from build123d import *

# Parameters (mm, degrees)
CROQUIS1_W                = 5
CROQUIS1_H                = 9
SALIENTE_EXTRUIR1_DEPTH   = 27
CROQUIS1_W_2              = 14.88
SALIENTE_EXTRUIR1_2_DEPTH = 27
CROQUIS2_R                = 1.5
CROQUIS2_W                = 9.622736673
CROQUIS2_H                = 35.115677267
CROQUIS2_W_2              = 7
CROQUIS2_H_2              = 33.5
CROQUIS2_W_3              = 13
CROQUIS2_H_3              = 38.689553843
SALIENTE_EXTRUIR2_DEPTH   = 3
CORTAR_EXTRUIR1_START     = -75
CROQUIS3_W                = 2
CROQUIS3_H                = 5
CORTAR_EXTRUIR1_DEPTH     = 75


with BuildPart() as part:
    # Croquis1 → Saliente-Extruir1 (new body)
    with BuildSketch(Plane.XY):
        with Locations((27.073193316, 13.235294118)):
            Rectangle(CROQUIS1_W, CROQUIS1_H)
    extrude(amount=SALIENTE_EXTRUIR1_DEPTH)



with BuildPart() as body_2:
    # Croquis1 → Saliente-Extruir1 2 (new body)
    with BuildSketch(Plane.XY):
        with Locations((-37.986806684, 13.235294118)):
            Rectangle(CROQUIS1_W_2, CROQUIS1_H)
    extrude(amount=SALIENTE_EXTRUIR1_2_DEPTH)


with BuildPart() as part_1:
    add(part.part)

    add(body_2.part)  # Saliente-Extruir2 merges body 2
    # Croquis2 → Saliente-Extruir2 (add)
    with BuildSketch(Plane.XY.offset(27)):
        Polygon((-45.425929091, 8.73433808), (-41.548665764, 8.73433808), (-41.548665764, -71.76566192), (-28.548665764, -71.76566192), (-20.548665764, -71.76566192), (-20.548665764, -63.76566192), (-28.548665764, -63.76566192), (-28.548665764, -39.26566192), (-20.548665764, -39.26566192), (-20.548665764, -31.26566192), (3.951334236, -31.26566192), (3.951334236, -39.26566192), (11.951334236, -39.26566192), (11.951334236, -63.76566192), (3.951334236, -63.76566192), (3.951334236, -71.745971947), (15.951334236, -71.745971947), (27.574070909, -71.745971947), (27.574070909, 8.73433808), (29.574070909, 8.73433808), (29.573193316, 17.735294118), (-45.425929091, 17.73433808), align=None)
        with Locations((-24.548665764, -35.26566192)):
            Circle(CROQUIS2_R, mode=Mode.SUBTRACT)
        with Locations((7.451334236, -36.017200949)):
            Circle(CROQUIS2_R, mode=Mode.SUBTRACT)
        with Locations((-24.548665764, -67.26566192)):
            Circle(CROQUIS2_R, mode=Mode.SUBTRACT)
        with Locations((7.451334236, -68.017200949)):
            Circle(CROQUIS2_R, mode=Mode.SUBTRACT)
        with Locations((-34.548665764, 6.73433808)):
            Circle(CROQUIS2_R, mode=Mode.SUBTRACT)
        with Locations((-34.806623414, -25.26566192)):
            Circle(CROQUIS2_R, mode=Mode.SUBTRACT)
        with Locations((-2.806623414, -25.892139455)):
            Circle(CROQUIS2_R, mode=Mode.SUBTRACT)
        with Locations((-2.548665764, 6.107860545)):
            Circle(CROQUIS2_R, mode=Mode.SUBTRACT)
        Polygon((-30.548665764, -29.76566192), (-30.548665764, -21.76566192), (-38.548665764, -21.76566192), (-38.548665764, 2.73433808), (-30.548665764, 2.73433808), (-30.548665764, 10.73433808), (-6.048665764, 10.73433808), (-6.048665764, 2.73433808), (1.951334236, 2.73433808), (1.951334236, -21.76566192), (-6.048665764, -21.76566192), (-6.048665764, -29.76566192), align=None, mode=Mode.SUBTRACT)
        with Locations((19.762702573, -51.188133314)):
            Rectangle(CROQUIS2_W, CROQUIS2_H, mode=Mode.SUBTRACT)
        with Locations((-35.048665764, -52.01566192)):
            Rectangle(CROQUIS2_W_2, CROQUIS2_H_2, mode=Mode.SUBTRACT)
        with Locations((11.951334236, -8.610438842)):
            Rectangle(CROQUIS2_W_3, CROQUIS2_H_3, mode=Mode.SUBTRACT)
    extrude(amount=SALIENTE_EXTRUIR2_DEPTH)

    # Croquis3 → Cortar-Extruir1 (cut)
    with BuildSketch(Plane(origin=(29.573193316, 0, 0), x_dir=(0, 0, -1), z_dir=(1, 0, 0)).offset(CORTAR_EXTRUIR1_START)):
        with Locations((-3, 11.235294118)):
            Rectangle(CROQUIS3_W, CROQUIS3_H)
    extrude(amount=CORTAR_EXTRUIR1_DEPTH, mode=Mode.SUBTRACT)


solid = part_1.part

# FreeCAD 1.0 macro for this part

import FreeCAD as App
import Part
import Sketcher

V = App.Vector
Q = App.Units.Quantity


def add_polygon(sketch, points):
    """Adds a closed chain of lines whose ends are joined by coincident constraints."""
    first, n = sketch.GeometryCount, len(points)
    for a, b in zip(points, points[1:] + points[:1]):
        sketch.addGeometry(Part.LineSegment(App.Vector(*a, 0), App.Vector(*b, 0)), False)
    for i in range(n):
        sketch.addConstraint(Sketcher.Constraint("Coincident", first + i, 2, first + (i + 1) % n, 1))

doc = App.newDocument("Part")
body = doc.addObject("PartDesign::Body", "Body")

sketch1 = doc.addObject("Sketcher::SketchObject", "Sketch")
body.addObject(sketch1)
sketch1.AttachmentSupport = (doc.XY_Plane, [""])
sketch1.MapMode = "FlatFace"
add_polygon(sketch1, [(25, 18), (25, 9), (30, 9), (30, 18)])
sketch1.addConstraint([
    Sketcher.Constraint("Vertical", 0),
    Sketcher.Constraint("Horizontal", 1),
    Sketcher.Constraint("Vertical", 2),
    Sketcher.Constraint("Horizontal", 3),
    Sketcher.Constraint("DistanceX", 1, 1, 1, 2, Q("5 mm")),
    Sketcher.Constraint("DistanceY", 0, 2, 0, 1, Q("9 mm")),
    Sketcher.Constraint("DistanceX", -1, 1, 0, 2, Q("24.573193 mm")),
    Sketcher.Constraint("DistanceY", -1, 1, 0, 2, Q("8.735294 mm")),
])
pad1 = doc.addObject("PartDesign::Pad", "Pad")
body.addObject(pad1)
pad1.Profile = sketch1
pad1.Length = 27
body2 = doc.addObject("PartDesign::Body", "Body001")

sketch2 = doc.addObject("Sketcher::SketchObject", "Sketch001")
body2.addObject(sketch2)
sketch2.AttachmentSupport = (doc.getObject("XY_Plane001"), [""])
sketch2.MapMode = "FlatFace"
add_polygon(sketch2, [(-45, 18), (-45, 9), (-31, 9), (-31, 18)])
sketch2.addConstraint([
    Sketcher.Constraint("Vertical", 0),
    Sketcher.Constraint("Horizontal", 1),
    Sketcher.Constraint("Vertical", 2),
    Sketcher.Constraint("Horizontal", 3),
    Sketcher.Constraint("DistanceY", 0, 2, 0, 1, Q("9 mm")),
    Sketcher.Constraint("DistanceX", 1, 1, 1, 2, Q("14.88 mm")),
    Sketcher.Constraint("DistanceX", 0, 2, -1, 1, Q("45.426807 mm")),
    Sketcher.Constraint("DistanceY", -1, 1, 0, 2, Q("8.735294 mm")),
])
pad2 = doc.addObject("PartDesign::Pad", "Pad001")
body2.addObject(pad2)
pad2.Profile = sketch2
pad2.Length = 27
body.AllowCompound = True
doc.recompute()

boolean = doc.addObject("PartDesign::Boolean", "Boolean")
body.addObject(boolean)
boolean.Type = "Fuse"
boolean.addObjects([body2])

sketch3 = doc.addObject("Sketcher::SketchObject", "Sketch002")
body.addObject(sketch3)
sketch3.AttachmentSupport = (doc.XY_Plane, [""])
sketch3.MapMode = "FlatFace"
sketch3.AttachmentOffset = App.Placement(V(0, 0, 27), App.Rotation())
add_polygon(sketch3, [(-45.4, 8.7), (-41.5, 8.7), (-41.5, -71.8), (-20.5, -71.8), (-20.5, -63.8), (-28.5, -63.8), (-28.5, -39.3), (-20.5, -39.3), (-20.5, -31.3), (4, -31.3), (4, -39.3), (12, -39.3), (12, -63.8), (4, -63.8), (4, -71.7), (27.6, -71.7), (27.6, 8.7), (29.6, 8.7), (29.6, 17.7), (-45.4, 17.7)])
sketch3.addGeometry(Part.Circle(V(-24.5, -67.3, 0), V(0, 0, 1), 1.5), False)
add_polygon(sketch3, [(-31.5, -68.8), (-38.5, -68.8), (-38.5, -35.3), (-31.5, -35.3)])
sketch3.addGeometry(Part.Circle(V(-24.5, -35.3, 0), V(0, 0, 1), 1.5), False)
sketch3.addGeometry(Part.Circle(V(7.5, -68, 0), V(0, 0, 1), 1.5), False)
add_polygon(sketch3, [(24.6, -68.7), (15, -68.7), (15, -33.6), (24.6, -33.6)])
sketch3.addGeometry(Part.Circle(V(7.5, -36, 0), V(0, 0, 1), 1.5), False)
sketch3.addGeometry(Part.Circle(V(-34.8, -25.3, 0), V(0, 0, 1), 1.5), False)
add_polygon(sketch3, [(-6, -29.8), (-30.5, -29.8), (-30.5, -21.8), (-38.5, -21.8), (-38.5, 2.7), (-30.5, 2.7), (-30.5, 10.7), (-6, 10.7), (-6, 2.7), (2, 2.7), (2, -21.8), (-6, -21.8)])
sketch3.addGeometry(Part.Circle(V(-34.5, 6.7, 0), V(0, 0, 1), 1.5), False)
sketch3.addGeometry(Part.Circle(V(-2.8, -25.9, 0), V(0, 0, 1), 1.5), False)
sketch3.addGeometry(Part.Circle(V(-2.5, 6.1, 0), V(0, 0, 1), 1.5), False)
add_polygon(sketch3, [(18.5, -28), (5.5, -28), (5.5, 10.7), (18.5, 10.7)])
sketch3.addConstraint([
    Sketcher.Constraint("Horizontal", 0),
    Sketcher.Constraint("Vertical", 1),
    Sketcher.Constraint("Horizontal", 2),
    Sketcher.Constraint("Vertical", 3),
    Sketcher.Constraint("Horizontal", 4),
    Sketcher.Constraint("Vertical", 5),
    Sketcher.Constraint("Horizontal", 6),
    Sketcher.Constraint("Vertical", 7),
    Sketcher.Constraint("Horizontal", 8),
    Sketcher.Constraint("Vertical", 9),
    Sketcher.Constraint("Horizontal", 10),
    Sketcher.Constraint("Vertical", 11),
    Sketcher.Constraint("Horizontal", 12),
    Sketcher.Constraint("Vertical", 13),
    Sketcher.Constraint("Horizontal", 14),
    Sketcher.Constraint("Vertical", 15),
    Sketcher.Constraint("Horizontal", 16),
    Sketcher.Constraint("Vertical", 19),
    Sketcher.Constraint("Horizontal", 21),
    Sketcher.Constraint("Vertical", 22),
    Sketcher.Constraint("Horizontal", 23),
    Sketcher.Constraint("Vertical", 24),
    Sketcher.Constraint("Horizontal", 27),
    Sketcher.Constraint("Vertical", 28),
    Sketcher.Constraint("Horizontal", 29),
    Sketcher.Constraint("Vertical", 30),
    Sketcher.Constraint("Horizontal", 33),
    Sketcher.Constraint("Vertical", 34),
    Sketcher.Constraint("Horizontal", 35),
    Sketcher.Constraint("Vertical", 36),
    Sketcher.Constraint("Horizontal", 37),
    Sketcher.Constraint("Vertical", 38),
    Sketcher.Constraint("Horizontal", 39),
    Sketcher.Constraint("Vertical", 40),
    Sketcher.Constraint("Horizontal", 41),
    Sketcher.Constraint("Vertical", 42),
    Sketcher.Constraint("Horizontal", 43),
    Sketcher.Constraint("Vertical", 44),
    Sketcher.Constraint("Horizontal", 48),
    Sketcher.Constraint("Vertical", 49),
    Sketcher.Constraint("Horizontal", 50),
    Sketcher.Constraint("Vertical", 51),
    Sketcher.Constraint("Equal", 20, 25),
    Sketcher.Constraint("Equal", 25, 26),
    Sketcher.Constraint("Equal", 26, 31),
    Sketcher.Constraint("Equal", 31, 32),
    Sketcher.Constraint("Equal", 32, 45),
    Sketcher.Constraint("Equal", 45, 46),
    Sketcher.Constraint("Equal", 46, 47),
    Sketcher.Constraint("Horizontal", 6, 2, 9, 2),
    Sketcher.Constraint("Horizontal", 4, 2, 11, 2),
    Sketcher.Constraint("Horizontal", 0, 2, 15, 2),
    Sketcher.Constraint("Horizontal", 25, 3, 22, 2),
    Sketcher.Constraint("Horizontal", 37, 2, 40, 2),
    Sketcher.Constraint("Horizontal", 35, 2, 42, 2),
    Sketcher.Constraint("Horizontal", 39, 2, 49, 2),
    Sketcher.Constraint("Vertical", 20, 3, 25, 3),
    Sketcher.Constraint("Vertical", 26, 3, 31, 3),
    Sketcher.Constraint("Vertical", 3, 2, 6, 2),
    Sketcher.Constraint("Vertical", 9, 2, 12, 2),
    Sketcher.Constraint("Vertical", 22, 2, 35, 2),
    Sketcher.Constraint("Vertical", 34, 2, 37, 2),
    Sketcher.Constraint("Vertical", 40, 2, 43, 2),
    Sketcher.Constraint("Equal", 6, 10),
    Sketcher.Constraint("Equal", 8, 33),
    Sketcher.Constraint("Equal", 12, 35),
    Sketcher.Constraint("Equal", 37, 41),
    Sketcher.Constraint("Equal", 43, 3),
    Sketcher.Constraint("Equal", 39, 5),
    Sketcher.Constraint("Equal", 3, 7),
    Sketcher.Constraint("Equal", 9, 34),
    Sketcher.Constraint("Equal", 11, 36),
    Sketcher.Constraint("Equal", 34, 38),
    Sketcher.Constraint("Diameter", 20, Q("3 mm")),
    Sketcher.Constraint("DistanceX", 2, 1, 2, 2, Q("21 mm")),
    Sketcher.Constraint("DistanceX", 4, 2, 4, 1, Q("8 mm")),
    Sketcher.Constraint("DistanceX", 16, 1, 16, 2, Q("2 mm")),
    Sketcher.Constraint("DistanceX", 21, 2, 21, 1, Q("7 mm")),
    Sketcher.Constraint("DistanceX", 48, 2, 48, 1, Q("13 mm")),
    Sketcher.Constraint("DistanceY", 19, 2, 19, 1, Q("9 mm")),
    Sketcher.Constraint("DistanceX", 8, 1, 8, 2, Q("24.5 mm")),
    Sketcher.Constraint("DistanceY", 1, 2, 1, 1, Q("80.5 mm")),
    Sketcher.Constraint("DistanceY", 22, 1, 22, 2, Q("33.5 mm")),
    Sketcher.Constraint("DistanceY", 20, 3, 25, 3, Q("32 mm")),
    Sketcher.Constraint("DistanceX", 20, 3, 26, 3, Q("32 mm")),
    Sketcher.Constraint("DistanceY", 26, 3, 31, 3, Q("32 mm")),
    Sketcher.Constraint("DistanceY", 25, 3, 32, 3, Q("10 mm")),
    Sketcher.Constraint("DistanceY", 32, 3, 45, 3, Q("32 mm")),
    Sketcher.Constraint("DistanceX", 45, 3, 25, 3, Q("10 mm")),
    Sketcher.Constraint("DistanceX", 32, 3, 46, 3, Q("32 mm")),
    Sketcher.Constraint("DistanceY", 46, 3, 47, 3, Q("32 mm")),
    Sketcher.Constraint("DistanceX", 45, 3, 47, 3, Q("32 mm")),
    Sketcher.Constraint("DistanceX", 0, 2, 45, 3, Q("7 mm")),
    Sketcher.Constraint("DistanceY", 45, 3, 0, 2, Q("2 mm")),
    Sketcher.Constraint("DistanceX", 1, 2, 21, 2, Q("3 mm")),
    Sketcher.Constraint("DistanceX", 11, 2, 27, 2, Q("3 mm")),
    Sketcher.Constraint("DistanceY", 13, 2, 27, 2, Q("3 mm")),
    Sketcher.Constraint("DistanceX", 30, 2, 14, 2, Q("3 mm")),
    Sketcher.Constraint("DistanceY", 36, 2, 45, 3, Q("4 mm")),
    Sketcher.Constraint("DistanceX", 48, 2, 31, 3, Q("2 mm")),
    Sketcher.Constraint("DistanceY", 13, 2, 13, 1, Q("7.98031 mm")),
    Sketcher.Constraint("DistanceY", 26, 3, -1, 1, Q("68.017201 mm")),
    Sketcher.Constraint("DistanceX", 0, 1, 0, 2, Q("3.877263 mm")),
    Sketcher.Constraint("DistanceX", 14, 1, 14, 2, Q("23.622737 mm")),
    Sketcher.Constraint("DistanceY", 28, 1, 28, 2, Q("35.115677 mm")),
    Sketcher.Constraint("DistanceY", 49, 1, 49, 2, Q("38.689554 mm")),
    Sketcher.Constraint("DistanceY", 20, 3, -1, 1, Q("67.265662 mm")),
    Sketcher.Constraint("DistanceY", 46, 3, -1, 1, Q("25.892139 mm")),
    Sketcher.Constraint("DistanceX", -1, 1, 14, 2, Q("27.574071 mm")),
    Sketcher.Constraint("DistanceX", 47, 3, 17, 2, Q("32.121859 mm")),
    Sketcher.Constraint("Distance", 17, Q("9.000956 mm")),
    Sketcher.Constraint("DistanceX", 32, 3, -1, 1, Q("34.806623 mm")),
])
pad3 = doc.addObject("PartDesign::Pad", "Pad002")
body.addObject(pad3)
pad3.Profile = sketch3
pad3.Length = 3

sketch4 = doc.addObject("Sketcher::SketchObject", "Sketch003")
body.addObject(sketch4)
sketch4.AttachmentSupport = (doc.YZ_Plane, [""])
sketch4.MapMode = "FlatFace"
sketch4.AttachmentOffset = App.Placement(V(0, 0, -45.426807), App.Rotation())
add_polygon(sketch4, [(13.7, 4), (8.7, 4), (8.7, 2), (13.7, 2)])
sketch4.addConstraint([
    Sketcher.Constraint("Horizontal", 0),
    Sketcher.Constraint("Vertical", 1),
    Sketcher.Constraint("Horizontal", 2),
    Sketcher.Constraint("Vertical", 3),
    Sketcher.Constraint("DistanceX", 0, 2, 0, 1, Q("5 mm")),
    Sketcher.Constraint("DistanceY", 1, 2, 1, 1, Q("2 mm")),
    Sketcher.Constraint("DistanceY", -1, 1, 0, 2, Q("4 mm")),
    Sketcher.Constraint("DistanceX", -1, 1, 0, 2, Q("8.735294 mm")),
])
pocket1 = doc.addObject("PartDesign::Pocket", "Pocket")
body.addObject(pocket1)
pocket1.Profile = sketch4
pocket1.Length = 75
pocket1.Reversed = True

doc.recompute()
